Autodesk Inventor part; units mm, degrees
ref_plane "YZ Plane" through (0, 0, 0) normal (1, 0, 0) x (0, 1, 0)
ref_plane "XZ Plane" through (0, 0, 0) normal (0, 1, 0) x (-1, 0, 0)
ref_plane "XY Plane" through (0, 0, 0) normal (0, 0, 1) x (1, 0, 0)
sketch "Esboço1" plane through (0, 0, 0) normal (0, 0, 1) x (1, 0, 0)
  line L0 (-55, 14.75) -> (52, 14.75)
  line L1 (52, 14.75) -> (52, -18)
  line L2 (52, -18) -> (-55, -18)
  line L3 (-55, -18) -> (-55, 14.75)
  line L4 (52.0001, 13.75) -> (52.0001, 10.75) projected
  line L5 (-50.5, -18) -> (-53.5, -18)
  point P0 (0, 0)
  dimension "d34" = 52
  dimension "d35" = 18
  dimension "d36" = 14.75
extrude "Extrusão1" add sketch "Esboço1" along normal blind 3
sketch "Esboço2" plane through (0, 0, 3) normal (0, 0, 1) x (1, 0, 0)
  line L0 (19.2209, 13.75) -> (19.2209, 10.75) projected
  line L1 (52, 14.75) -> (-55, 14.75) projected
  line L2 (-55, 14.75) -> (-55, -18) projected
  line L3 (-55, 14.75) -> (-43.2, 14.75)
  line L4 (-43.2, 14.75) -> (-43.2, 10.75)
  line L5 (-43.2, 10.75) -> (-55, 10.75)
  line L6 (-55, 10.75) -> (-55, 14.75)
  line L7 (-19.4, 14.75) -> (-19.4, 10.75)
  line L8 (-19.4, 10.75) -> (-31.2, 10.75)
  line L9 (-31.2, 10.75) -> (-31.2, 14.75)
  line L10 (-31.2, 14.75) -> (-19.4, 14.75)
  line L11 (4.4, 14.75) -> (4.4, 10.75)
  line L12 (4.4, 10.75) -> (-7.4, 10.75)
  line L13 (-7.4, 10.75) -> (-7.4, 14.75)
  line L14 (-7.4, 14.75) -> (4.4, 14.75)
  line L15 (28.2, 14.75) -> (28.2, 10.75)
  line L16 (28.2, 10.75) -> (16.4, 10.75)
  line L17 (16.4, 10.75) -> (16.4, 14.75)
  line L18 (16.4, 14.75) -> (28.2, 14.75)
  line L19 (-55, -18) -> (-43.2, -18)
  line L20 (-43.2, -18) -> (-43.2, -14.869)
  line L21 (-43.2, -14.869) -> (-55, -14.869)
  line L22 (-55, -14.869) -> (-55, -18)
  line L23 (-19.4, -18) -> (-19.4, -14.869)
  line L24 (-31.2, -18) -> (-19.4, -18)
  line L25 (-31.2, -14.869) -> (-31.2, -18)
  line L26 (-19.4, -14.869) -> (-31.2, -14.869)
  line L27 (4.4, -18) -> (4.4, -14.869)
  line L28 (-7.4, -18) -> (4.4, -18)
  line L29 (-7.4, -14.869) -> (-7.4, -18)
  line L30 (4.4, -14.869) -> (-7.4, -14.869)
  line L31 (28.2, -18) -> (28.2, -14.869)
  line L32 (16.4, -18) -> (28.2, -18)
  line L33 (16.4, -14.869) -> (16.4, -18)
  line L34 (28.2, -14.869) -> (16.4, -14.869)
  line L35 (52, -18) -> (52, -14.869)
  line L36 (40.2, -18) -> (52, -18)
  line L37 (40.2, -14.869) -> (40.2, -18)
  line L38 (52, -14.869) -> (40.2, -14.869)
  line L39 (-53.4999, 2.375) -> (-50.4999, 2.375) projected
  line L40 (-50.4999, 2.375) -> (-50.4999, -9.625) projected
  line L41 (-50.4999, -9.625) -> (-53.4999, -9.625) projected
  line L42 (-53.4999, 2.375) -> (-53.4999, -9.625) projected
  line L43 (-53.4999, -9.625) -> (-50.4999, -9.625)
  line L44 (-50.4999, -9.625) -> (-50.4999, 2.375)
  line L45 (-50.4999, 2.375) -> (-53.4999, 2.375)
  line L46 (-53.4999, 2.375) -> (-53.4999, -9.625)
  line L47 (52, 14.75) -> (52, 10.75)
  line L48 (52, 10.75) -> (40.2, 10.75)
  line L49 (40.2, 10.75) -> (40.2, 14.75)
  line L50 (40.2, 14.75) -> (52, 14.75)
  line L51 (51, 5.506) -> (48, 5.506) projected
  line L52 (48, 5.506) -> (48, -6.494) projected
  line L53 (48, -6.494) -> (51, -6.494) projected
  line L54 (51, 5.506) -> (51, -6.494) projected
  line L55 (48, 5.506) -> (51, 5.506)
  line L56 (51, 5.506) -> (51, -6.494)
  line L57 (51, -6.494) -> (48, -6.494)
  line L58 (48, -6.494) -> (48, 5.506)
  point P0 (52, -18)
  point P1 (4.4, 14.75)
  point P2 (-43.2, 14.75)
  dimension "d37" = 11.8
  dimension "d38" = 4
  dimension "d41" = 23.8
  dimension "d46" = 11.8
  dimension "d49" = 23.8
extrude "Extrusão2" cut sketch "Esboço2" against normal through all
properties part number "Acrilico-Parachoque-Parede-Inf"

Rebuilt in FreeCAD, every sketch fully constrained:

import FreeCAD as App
import Part
import Sketcher
Q = App.Units.Quantity

doc = App.newDocument("Part")
body = doc.addObject("PartDesign::Body", "Body")

sketch1 = doc.addObject("Sketcher::SketchObject", "Sketch")
body.addObject(sketch1)
sketch1.AttachmentSupport = (doc.XY_Plane, [""])
sketch1.MapMode = "FlatFace"
sketch1.addGeometry([
    Part.LineSegment(App.Vector(52, 14.8, 0), App.Vector(-55, 14.8, 0)),
    Part.LineSegment(App.Vector(-55, 14.8, 0), App.Vector(-55, -18, 0)),
    Part.LineSegment(App.Vector(-55, -18, 0), App.Vector(52, -18, 0)),
    Part.LineSegment(App.Vector(52, -18, 0), App.Vector(52, 10.8, 0)),
    Part.LineSegment(App.Vector(52, 10.8, 0), App.Vector(52, 13.8, 0)),
    Part.LineSegment(App.Vector(52, 13.8, 0), App.Vector(52, 14.8, 0)),
], False)
sketch1.addConstraint([
    Sketcher.Constraint("Coincident", 0, 2, 1, 1),
    Sketcher.Constraint("Coincident", 1, 2, 2, 1),
    Sketcher.Constraint("Coincident", 2, 2, 3, 1),
    Sketcher.Constraint("Coincident", 3, 2, 4, 1),
    Sketcher.Constraint("Coincident", 4, 2, 5, 1),
    Sketcher.Constraint("Coincident", 5, 2, 0, 1),
    Sketcher.Constraint("Horizontal", 0),
    Sketcher.Constraint("Vertical", 1),
    Sketcher.Constraint("Horizontal", 2),
    Sketcher.Constraint("Vertical", 3),
    Sketcher.Constraint("Vertical", 4),
    Sketcher.Constraint("Vertical", 5),
    Sketcher.Constraint("DistanceY", 1, 2, -1, 1, Q("18 mm")),
    Sketcher.Constraint("DistanceX", -1, 1, 2, 2, Q("52 mm")),
    Sketcher.Constraint("DistanceX", 0, 2, 0, 1, Q("107 mm")),
    Sketcher.Constraint("DistanceY", 4, 1, 4, 2, Q("3 mm")),
    Sketcher.Constraint("DistanceY", 5, 1, 5, 2, Q("1 mm")),
    Sketcher.Constraint("DistanceY", -1, 1, 0, 2, Q("14.75 mm")),
])
pad1 = doc.addObject("PartDesign::Pad", "Pad")
body.addObject(pad1)
pad1.Profile = sketch1
pad1.Length = 3

sketch2 = doc.addObject("Sketcher::SketchObject", "Sketch001")
body.addObject(sketch2)
sketch2.AttachmentSupport = (doc.XY_Plane, [""])
sketch2.MapMode = "FlatFace"
sketch2.AttachmentOffset = App.Placement(App.Vector(0, 0, 3), App.Rotation())
sketch2.addGeometry([
    Part.LineSegment(App.Vector(52, 10.8, 0), App.Vector(52, 14.8, 0)),
    Part.LineSegment(App.Vector(52, 14.8, 0), App.Vector(40.2, 14.8, 0)),
    Part.LineSegment(App.Vector(40.2, 14.8, 0), App.Vector(40.2, 10.8, 0)),
    Part.LineSegment(App.Vector(40.2, 10.8, 0), App.Vector(52, 10.8, 0)),
    Part.LineSegment(App.Vector(-43.2, -14.9, 0), App.Vector(-55, -14.9, 0)),
    Part.LineSegment(App.Vector(-55, -14.9, 0), App.Vector(-55, -18, 0)),
    Part.LineSegment(App.Vector(-55, -18, 0), App.Vector(-43.2, -18, 0)),
    Part.LineSegment(App.Vector(-43.2, -18, 0), App.Vector(-43.2, -14.9, 0)),
    Part.LineSegment(App.Vector(-43.2, 10.8, 0), App.Vector(-43.2, 14.8, 0)),
    Part.LineSegment(App.Vector(-43.2, 14.8, 0), App.Vector(-55, 14.8, 0)),
    Part.LineSegment(App.Vector(-55, 14.8, 0), App.Vector(-55, 10.8, 0)),
    Part.LineSegment(App.Vector(-55, 10.8, 0), App.Vector(-43.2, 10.8, 0)),
    Part.LineSegment(App.Vector(-19.4, 10.8, 0), App.Vector(-19.4, 14.8, 0)),
    Part.LineSegment(App.Vector(-19.4, 14.8, 0), App.Vector(-31.2, 14.8, 0)),
    Part.LineSegment(App.Vector(-31.2, 14.8, 0), App.Vector(-31.2, 10.8, 0)),
    Part.LineSegment(App.Vector(-31.2, 10.8, 0), App.Vector(-19.4, 10.8, 0)),
    Part.LineSegment(App.Vector(4.4, 10.8, 0), App.Vector(4.4, 14.8, 0)),
    Part.LineSegment(App.Vector(4.4, 14.8, 0), App.Vector(-7.4, 14.8, 0)),
    Part.LineSegment(App.Vector(-7.4, 14.8, 0), App.Vector(-7.4, 10.8, 0)),
    Part.LineSegment(App.Vector(-7.4, 10.8, 0), App.Vector(4.4, 10.8, 0)),
    Part.LineSegment(App.Vector(28.2, 10.8, 0), App.Vector(28.2, 14.8, 0)),
    Part.LineSegment(App.Vector(28.2, 14.8, 0), App.Vector(16.4, 14.8, 0)),
    Part.LineSegment(App.Vector(16.4, 14.8, 0), App.Vector(16.4, 10.8, 0)),
    Part.LineSegment(App.Vector(16.4, 10.8, 0), App.Vector(28.2, 10.8, 0)),
    Part.LineSegment(App.Vector(-31.2, -18, 0), App.Vector(-19.4, -18, 0)),
    Part.LineSegment(App.Vector(-19.4, -18, 0), App.Vector(-19.4, -14.9, 0)),
    Part.LineSegment(App.Vector(-19.4, -14.9, 0), App.Vector(-31.2, -14.9, 0)),
    Part.LineSegment(App.Vector(-31.2, -14.9, 0), App.Vector(-31.2, -18, 0)),
    Part.LineSegment(App.Vector(-7.4, -18, 0), App.Vector(4.4, -18, 0)),
    Part.LineSegment(App.Vector(4.4, -18, 0), App.Vector(4.4, -14.9, 0)),
    Part.LineSegment(App.Vector(4.4, -14.9, 0), App.Vector(-7.4, -14.9, 0)),
    Part.LineSegment(App.Vector(-7.4, -14.9, 0), App.Vector(-7.4, -18, 0)),
    Part.LineSegment(App.Vector(16.4, -18, 0), App.Vector(28.2, -18, 0)),
    Part.LineSegment(App.Vector(28.2, -18, 0), App.Vector(28.2, -14.9, 0)),
    Part.LineSegment(App.Vector(28.2, -14.9, 0), App.Vector(16.4, -14.9, 0)),
    Part.LineSegment(App.Vector(16.4, -14.9, 0), App.Vector(16.4, -18, 0)),
    Part.LineSegment(App.Vector(40.2, -18, 0), App.Vector(52, -18, 0)),
    Part.LineSegment(App.Vector(52, -18, 0), App.Vector(52, -14.9, 0)),
    Part.LineSegment(App.Vector(52, -14.9, 0), App.Vector(40.2, -14.9, 0)),
    Part.LineSegment(App.Vector(40.2, -14.9, 0), App.Vector(40.2, -18, 0)),
    Part.LineSegment(App.Vector(-50.5, 2.4, 0), App.Vector(-53.5, 2.4, 0)),
    Part.LineSegment(App.Vector(-53.5, 2.4, 0), App.Vector(-53.5, -9.6, 0)),
    Part.LineSegment(App.Vector(-53.5, -9.6, 0), App.Vector(-50.5, -9.6, 0)),
    Part.LineSegment(App.Vector(-50.5, -9.6, 0), App.Vector(-50.5, 2.4, 0)),
    Part.LineSegment(App.Vector(51, -6.5, 0), App.Vector(51, 5.5, 0)),
    Part.LineSegment(App.Vector(51, 5.5, 0), App.Vector(48, 5.5, 0)),
    Part.LineSegment(App.Vector(48, 5.5, 0), App.Vector(48, -6.5, 0)),
    Part.LineSegment(App.Vector(48, -6.5, 0), App.Vector(51, -6.5, 0)),
], False)
sketch2.addConstraint([
    Sketcher.Constraint("Coincident", 0, 2, 1, 1),
    Sketcher.Constraint("Coincident", 1, 2, 2, 1),
    Sketcher.Constraint("Coincident", 2, 2, 3, 1),
    Sketcher.Constraint("Coincident", 3, 2, 0, 1),
    Sketcher.Constraint("Coincident", 4, 2, 5, 1),
    Sketcher.Constraint("Coincident", 5, 2, 6, 1),
    Sketcher.Constraint("Coincident", 6, 2, 7, 1),
    Sketcher.Constraint("Coincident", 7, 2, 4, 1),
    Sketcher.Constraint("Coincident", 8, 2, 9, 1),
    Sketcher.Constraint("Coincident", 9, 2, 10, 1),
    Sketcher.Constraint("Coincident", 10, 2, 11, 1),
    Sketcher.Constraint("Coincident", 11, 2, 8, 1),
    Sketcher.Constraint("Coincident", 12, 2, 13, 1),
    Sketcher.Constraint("Coincident", 13, 2, 14, 1),
    Sketcher.Constraint("Coincident", 14, 2, 15, 1),
    Sketcher.Constraint("Coincident", 15, 2, 12, 1),
    Sketcher.Constraint("Coincident", 16, 2, 17, 1),
    Sketcher.Constraint("Coincident", 17, 2, 18, 1),
    Sketcher.Constraint("Coincident", 18, 2, 19, 1),
    Sketcher.Constraint("Coincident", 19, 2, 16, 1),
    Sketcher.Constraint("Coincident", 20, 2, 21, 1),
    Sketcher.Constraint("Coincident", 21, 2, 22, 1),
    Sketcher.Constraint("Coincident", 22, 2, 23, 1),
    Sketcher.Constraint("Coincident", 23, 2, 20, 1),
    Sketcher.Constraint("Coincident", 24, 2, 25, 1),
    Sketcher.Constraint("Coincident", 25, 2, 26, 1),
    Sketcher.Constraint("Coincident", 26, 2, 27, 1),
    Sketcher.Constraint("Coincident", 27, 2, 24, 1),
    Sketcher.Constraint("Coincident", 28, 2, 29, 1),
    Sketcher.Constraint("Coincident", 29, 2, 30, 1),
    Sketcher.Constraint("Coincident", 30, 2, 31, 1),
    Sketcher.Constraint("Coincident", 31, 2, 28, 1),
    Sketcher.Constraint("Coincident", 32, 2, 33, 1),
    Sketcher.Constraint("Coincident", 33, 2, 34, 1),
    Sketcher.Constraint("Coincident", 34, 2, 35, 1),
    Sketcher.Constraint("Coincident", 35, 2, 32, 1),
    Sketcher.Constraint("Coincident", 36, 2, 37, 1),
    Sketcher.Constraint("Coincident", 37, 2, 38, 1),
    Sketcher.Constraint("Coincident", 38, 2, 39, 1),
    Sketcher.Constraint("Coincident", 39, 2, 36, 1),
    Sketcher.Constraint("Coincident", 40, 2, 41, 1),
    Sketcher.Constraint("Coincident", 41, 2, 42, 1),
    Sketcher.Constraint("Coincident", 42, 2, 43, 1),
    Sketcher.Constraint("Coincident", 43, 2, 40, 1),
    Sketcher.Constraint("Coincident", 44, 2, 45, 1),
    Sketcher.Constraint("Coincident", 45, 2, 46, 1),
    Sketcher.Constraint("Coincident", 46, 2, 47, 1),
    Sketcher.Constraint("Coincident", 47, 2, 44, 1),
    Sketcher.Constraint("Vertical", 0),
    Sketcher.Constraint("Horizontal", 1),
    Sketcher.Constraint("Vertical", 2),
    Sketcher.Constraint("Horizontal", 3),
    Sketcher.Constraint("Horizontal", 4),
    Sketcher.Constraint("Vertical", 5),
    Sketcher.Constraint("Horizontal", 6),
    Sketcher.Constraint("Vertical", 7),
    Sketcher.Constraint("Vertical", 8),
    Sketcher.Constraint("Horizontal", 9),
    Sketcher.Constraint("Vertical", 10),
    Sketcher.Constraint("Horizontal", 11),
    Sketcher.Constraint("Vertical", 12),
    Sketcher.Constraint("Horizontal", 13),
    Sketcher.Constraint("Vertical", 14),
    Sketcher.Constraint("Horizontal", 15),
    Sketcher.Constraint("Vertical", 16),
    Sketcher.Constraint("Horizontal", 17),
    Sketcher.Constraint("Vertical", 18),
    Sketcher.Constraint("Horizontal", 19),
    Sketcher.Constraint("Vertical", 20),
    Sketcher.Constraint("Horizontal", 21),
    Sketcher.Constraint("Vertical", 22),
    Sketcher.Constraint("Horizontal", 23),
    Sketcher.Constraint("Horizontal", 24),
    Sketcher.Constraint("Vertical", 25),
    Sketcher.Constraint("Horizontal", 26),
    Sketcher.Constraint("Vertical", 27),
    Sketcher.Constraint("Horizontal", 28),
    Sketcher.Constraint("Vertical", 29),
    Sketcher.Constraint("Horizontal", 30),
    Sketcher.Constraint("Vertical", 31),
    Sketcher.Constraint("Horizontal", 32),
    Sketcher.Constraint("Vertical", 33),
    Sketcher.Constraint("Horizontal", 34),
    Sketcher.Constraint("Vertical", 35),
    Sketcher.Constraint("Horizontal", 36),
    Sketcher.Constraint("Vertical", 37),
    Sketcher.Constraint("Horizontal", 38),
    Sketcher.Constraint("Vertical", 39),
    Sketcher.Constraint("Horizontal", 40),
    Sketcher.Constraint("Vertical", 41),
    Sketcher.Constraint("Horizontal", 42),
    Sketcher.Constraint("Vertical", 43),
    Sketcher.Constraint("Vertical", 44),
    Sketcher.Constraint("Horizontal", 45),
    Sketcher.Constraint("Vertical", 46),
    Sketcher.Constraint("Horizontal", 47),
    Sketcher.Constraint("Horizontal", 1, 2, 8, 2),
    Sketcher.Constraint("Horizontal", 3, 2, 10, 2),
    Sketcher.Constraint("Horizontal", 9, 2, 12, 2),
    Sketcher.Constraint("Horizontal", 11, 2, 14, 2),
    Sketcher.Constraint("Horizontal", 13, 2, 16, 2),
    Sketcher.Constraint("Horizontal", 15, 2, 18, 2),
    Sketcher.Constraint("Horizontal", 17, 2, 20, 2),
    Sketcher.Constraint("Horizontal", 19, 2, 22, 2),
    Sketcher.Constraint("Horizontal", 6, 2, 24, 2),
    Sketcher.Constraint("Horizontal", 7, 2, 25, 2),
    Sketcher.Constraint("Horizontal", 27, 2, 28, 2),
    Sketcher.Constraint("Horizontal", 26, 2, 29, 2),
    Sketcher.Constraint("Horizontal", 31, 2, 32, 2),
    Sketcher.Constraint("Horizontal", 30, 2, 33, 2),
    Sketcher.Constraint("Horizontal", 35, 2, 36, 2),
    Sketcher.Constraint("Horizontal", 34, 2, 37, 2),
    Sketcher.Constraint("Vertical", 7, 2, 8, 2),
    Sketcher.Constraint("Vertical", 5, 2, 9, 2),
    Sketcher.Constraint("Vertical", 15, 2, 24, 2),
    Sketcher.Constraint("Vertical", 14, 2, 26, 2),
    Sketcher.Constraint("Vertical", 19, 2, 28, 2),
    Sketcher.Constraint("Vertical", 18, 2, 30, 2),
    Sketcher.Constraint("Vertical", 23, 2, 32, 2),
    Sketcher.Constraint("Vertical", 22, 2, 34, 2),
    Sketcher.Constraint("Vertical", 3, 2, 36, 2),
    Sketcher.Constraint("Vertical", 2, 2, 38, 2),
    Sketcher.Constraint("Equal", 3, 4),
    Sketcher.Constraint("Equal", 11, 13),
    Sketcher.Constraint("Equal", 15, 17),
    Sketcher.Constraint("Equal", 19, 21),
    Sketcher.Constraint("Equal", 42, 45),
    Sketcher.Constraint("Equal", 43, 44),
    Sketcher.Constraint("DistanceY", 0, 1, 0, 2, Q("4 mm")),
    Sketcher.Constraint("DistanceX", 1, 2, 1, 1, Q("11.8 mm")),
    Sketcher.Constraint("DistanceX", 45, 2, 3, 2, Q("4 mm")),
    Sketcher.Constraint("DistanceX", 8, 2, 12, 2, Q("23.8 mm")),
    Sketcher.Constraint("DistanceX", 12, 2, 16, 2, Q("23.8 mm")),
    Sketcher.Constraint("DistanceX", 16, 2, 20, 2, Q("23.8 mm")),
    Sketcher.Constraint("DistanceX", 20, 2, 0, 2, Q("23.8 mm")),
    Sketcher.Constraint("DistanceX", 40, 2, 40, 1, Q("3 mm")),
    Sketcher.Constraint("DistanceY", 41, 2, 41, 1, Q("12 mm")),
    Sketcher.Constraint("DistanceX", -1, 1, 0, 2, Q("52 mm")),
    Sketcher.Constraint("DistanceY", 5, 2, -1, 1, Q("18 mm")),
    Sketcher.Constraint("DistanceX", 40, 2, -1, 1, Q("53.5 mm")),
    Sketcher.Constraint("DistanceY", 5, 2, 5, 1, Q("3.131 mm")),
    Sketcher.Constraint("DistanceY", -1, 1, 0, 2, Q("14.75 mm")),
    Sketcher.Constraint("DistanceY", -1, 1, 40, 2, Q("2.375 mm")),
    Sketcher.Constraint("DistanceY", -1, 1, 44, 2, Q("5.506 mm")),
])
pocket1 = doc.addObject("PartDesign::Pocket", "Pocket")
body.addObject(pocket1)
pocket1.Profile = sketch2
pocket1.Type = "ThroughAll"

doc.recompute()
